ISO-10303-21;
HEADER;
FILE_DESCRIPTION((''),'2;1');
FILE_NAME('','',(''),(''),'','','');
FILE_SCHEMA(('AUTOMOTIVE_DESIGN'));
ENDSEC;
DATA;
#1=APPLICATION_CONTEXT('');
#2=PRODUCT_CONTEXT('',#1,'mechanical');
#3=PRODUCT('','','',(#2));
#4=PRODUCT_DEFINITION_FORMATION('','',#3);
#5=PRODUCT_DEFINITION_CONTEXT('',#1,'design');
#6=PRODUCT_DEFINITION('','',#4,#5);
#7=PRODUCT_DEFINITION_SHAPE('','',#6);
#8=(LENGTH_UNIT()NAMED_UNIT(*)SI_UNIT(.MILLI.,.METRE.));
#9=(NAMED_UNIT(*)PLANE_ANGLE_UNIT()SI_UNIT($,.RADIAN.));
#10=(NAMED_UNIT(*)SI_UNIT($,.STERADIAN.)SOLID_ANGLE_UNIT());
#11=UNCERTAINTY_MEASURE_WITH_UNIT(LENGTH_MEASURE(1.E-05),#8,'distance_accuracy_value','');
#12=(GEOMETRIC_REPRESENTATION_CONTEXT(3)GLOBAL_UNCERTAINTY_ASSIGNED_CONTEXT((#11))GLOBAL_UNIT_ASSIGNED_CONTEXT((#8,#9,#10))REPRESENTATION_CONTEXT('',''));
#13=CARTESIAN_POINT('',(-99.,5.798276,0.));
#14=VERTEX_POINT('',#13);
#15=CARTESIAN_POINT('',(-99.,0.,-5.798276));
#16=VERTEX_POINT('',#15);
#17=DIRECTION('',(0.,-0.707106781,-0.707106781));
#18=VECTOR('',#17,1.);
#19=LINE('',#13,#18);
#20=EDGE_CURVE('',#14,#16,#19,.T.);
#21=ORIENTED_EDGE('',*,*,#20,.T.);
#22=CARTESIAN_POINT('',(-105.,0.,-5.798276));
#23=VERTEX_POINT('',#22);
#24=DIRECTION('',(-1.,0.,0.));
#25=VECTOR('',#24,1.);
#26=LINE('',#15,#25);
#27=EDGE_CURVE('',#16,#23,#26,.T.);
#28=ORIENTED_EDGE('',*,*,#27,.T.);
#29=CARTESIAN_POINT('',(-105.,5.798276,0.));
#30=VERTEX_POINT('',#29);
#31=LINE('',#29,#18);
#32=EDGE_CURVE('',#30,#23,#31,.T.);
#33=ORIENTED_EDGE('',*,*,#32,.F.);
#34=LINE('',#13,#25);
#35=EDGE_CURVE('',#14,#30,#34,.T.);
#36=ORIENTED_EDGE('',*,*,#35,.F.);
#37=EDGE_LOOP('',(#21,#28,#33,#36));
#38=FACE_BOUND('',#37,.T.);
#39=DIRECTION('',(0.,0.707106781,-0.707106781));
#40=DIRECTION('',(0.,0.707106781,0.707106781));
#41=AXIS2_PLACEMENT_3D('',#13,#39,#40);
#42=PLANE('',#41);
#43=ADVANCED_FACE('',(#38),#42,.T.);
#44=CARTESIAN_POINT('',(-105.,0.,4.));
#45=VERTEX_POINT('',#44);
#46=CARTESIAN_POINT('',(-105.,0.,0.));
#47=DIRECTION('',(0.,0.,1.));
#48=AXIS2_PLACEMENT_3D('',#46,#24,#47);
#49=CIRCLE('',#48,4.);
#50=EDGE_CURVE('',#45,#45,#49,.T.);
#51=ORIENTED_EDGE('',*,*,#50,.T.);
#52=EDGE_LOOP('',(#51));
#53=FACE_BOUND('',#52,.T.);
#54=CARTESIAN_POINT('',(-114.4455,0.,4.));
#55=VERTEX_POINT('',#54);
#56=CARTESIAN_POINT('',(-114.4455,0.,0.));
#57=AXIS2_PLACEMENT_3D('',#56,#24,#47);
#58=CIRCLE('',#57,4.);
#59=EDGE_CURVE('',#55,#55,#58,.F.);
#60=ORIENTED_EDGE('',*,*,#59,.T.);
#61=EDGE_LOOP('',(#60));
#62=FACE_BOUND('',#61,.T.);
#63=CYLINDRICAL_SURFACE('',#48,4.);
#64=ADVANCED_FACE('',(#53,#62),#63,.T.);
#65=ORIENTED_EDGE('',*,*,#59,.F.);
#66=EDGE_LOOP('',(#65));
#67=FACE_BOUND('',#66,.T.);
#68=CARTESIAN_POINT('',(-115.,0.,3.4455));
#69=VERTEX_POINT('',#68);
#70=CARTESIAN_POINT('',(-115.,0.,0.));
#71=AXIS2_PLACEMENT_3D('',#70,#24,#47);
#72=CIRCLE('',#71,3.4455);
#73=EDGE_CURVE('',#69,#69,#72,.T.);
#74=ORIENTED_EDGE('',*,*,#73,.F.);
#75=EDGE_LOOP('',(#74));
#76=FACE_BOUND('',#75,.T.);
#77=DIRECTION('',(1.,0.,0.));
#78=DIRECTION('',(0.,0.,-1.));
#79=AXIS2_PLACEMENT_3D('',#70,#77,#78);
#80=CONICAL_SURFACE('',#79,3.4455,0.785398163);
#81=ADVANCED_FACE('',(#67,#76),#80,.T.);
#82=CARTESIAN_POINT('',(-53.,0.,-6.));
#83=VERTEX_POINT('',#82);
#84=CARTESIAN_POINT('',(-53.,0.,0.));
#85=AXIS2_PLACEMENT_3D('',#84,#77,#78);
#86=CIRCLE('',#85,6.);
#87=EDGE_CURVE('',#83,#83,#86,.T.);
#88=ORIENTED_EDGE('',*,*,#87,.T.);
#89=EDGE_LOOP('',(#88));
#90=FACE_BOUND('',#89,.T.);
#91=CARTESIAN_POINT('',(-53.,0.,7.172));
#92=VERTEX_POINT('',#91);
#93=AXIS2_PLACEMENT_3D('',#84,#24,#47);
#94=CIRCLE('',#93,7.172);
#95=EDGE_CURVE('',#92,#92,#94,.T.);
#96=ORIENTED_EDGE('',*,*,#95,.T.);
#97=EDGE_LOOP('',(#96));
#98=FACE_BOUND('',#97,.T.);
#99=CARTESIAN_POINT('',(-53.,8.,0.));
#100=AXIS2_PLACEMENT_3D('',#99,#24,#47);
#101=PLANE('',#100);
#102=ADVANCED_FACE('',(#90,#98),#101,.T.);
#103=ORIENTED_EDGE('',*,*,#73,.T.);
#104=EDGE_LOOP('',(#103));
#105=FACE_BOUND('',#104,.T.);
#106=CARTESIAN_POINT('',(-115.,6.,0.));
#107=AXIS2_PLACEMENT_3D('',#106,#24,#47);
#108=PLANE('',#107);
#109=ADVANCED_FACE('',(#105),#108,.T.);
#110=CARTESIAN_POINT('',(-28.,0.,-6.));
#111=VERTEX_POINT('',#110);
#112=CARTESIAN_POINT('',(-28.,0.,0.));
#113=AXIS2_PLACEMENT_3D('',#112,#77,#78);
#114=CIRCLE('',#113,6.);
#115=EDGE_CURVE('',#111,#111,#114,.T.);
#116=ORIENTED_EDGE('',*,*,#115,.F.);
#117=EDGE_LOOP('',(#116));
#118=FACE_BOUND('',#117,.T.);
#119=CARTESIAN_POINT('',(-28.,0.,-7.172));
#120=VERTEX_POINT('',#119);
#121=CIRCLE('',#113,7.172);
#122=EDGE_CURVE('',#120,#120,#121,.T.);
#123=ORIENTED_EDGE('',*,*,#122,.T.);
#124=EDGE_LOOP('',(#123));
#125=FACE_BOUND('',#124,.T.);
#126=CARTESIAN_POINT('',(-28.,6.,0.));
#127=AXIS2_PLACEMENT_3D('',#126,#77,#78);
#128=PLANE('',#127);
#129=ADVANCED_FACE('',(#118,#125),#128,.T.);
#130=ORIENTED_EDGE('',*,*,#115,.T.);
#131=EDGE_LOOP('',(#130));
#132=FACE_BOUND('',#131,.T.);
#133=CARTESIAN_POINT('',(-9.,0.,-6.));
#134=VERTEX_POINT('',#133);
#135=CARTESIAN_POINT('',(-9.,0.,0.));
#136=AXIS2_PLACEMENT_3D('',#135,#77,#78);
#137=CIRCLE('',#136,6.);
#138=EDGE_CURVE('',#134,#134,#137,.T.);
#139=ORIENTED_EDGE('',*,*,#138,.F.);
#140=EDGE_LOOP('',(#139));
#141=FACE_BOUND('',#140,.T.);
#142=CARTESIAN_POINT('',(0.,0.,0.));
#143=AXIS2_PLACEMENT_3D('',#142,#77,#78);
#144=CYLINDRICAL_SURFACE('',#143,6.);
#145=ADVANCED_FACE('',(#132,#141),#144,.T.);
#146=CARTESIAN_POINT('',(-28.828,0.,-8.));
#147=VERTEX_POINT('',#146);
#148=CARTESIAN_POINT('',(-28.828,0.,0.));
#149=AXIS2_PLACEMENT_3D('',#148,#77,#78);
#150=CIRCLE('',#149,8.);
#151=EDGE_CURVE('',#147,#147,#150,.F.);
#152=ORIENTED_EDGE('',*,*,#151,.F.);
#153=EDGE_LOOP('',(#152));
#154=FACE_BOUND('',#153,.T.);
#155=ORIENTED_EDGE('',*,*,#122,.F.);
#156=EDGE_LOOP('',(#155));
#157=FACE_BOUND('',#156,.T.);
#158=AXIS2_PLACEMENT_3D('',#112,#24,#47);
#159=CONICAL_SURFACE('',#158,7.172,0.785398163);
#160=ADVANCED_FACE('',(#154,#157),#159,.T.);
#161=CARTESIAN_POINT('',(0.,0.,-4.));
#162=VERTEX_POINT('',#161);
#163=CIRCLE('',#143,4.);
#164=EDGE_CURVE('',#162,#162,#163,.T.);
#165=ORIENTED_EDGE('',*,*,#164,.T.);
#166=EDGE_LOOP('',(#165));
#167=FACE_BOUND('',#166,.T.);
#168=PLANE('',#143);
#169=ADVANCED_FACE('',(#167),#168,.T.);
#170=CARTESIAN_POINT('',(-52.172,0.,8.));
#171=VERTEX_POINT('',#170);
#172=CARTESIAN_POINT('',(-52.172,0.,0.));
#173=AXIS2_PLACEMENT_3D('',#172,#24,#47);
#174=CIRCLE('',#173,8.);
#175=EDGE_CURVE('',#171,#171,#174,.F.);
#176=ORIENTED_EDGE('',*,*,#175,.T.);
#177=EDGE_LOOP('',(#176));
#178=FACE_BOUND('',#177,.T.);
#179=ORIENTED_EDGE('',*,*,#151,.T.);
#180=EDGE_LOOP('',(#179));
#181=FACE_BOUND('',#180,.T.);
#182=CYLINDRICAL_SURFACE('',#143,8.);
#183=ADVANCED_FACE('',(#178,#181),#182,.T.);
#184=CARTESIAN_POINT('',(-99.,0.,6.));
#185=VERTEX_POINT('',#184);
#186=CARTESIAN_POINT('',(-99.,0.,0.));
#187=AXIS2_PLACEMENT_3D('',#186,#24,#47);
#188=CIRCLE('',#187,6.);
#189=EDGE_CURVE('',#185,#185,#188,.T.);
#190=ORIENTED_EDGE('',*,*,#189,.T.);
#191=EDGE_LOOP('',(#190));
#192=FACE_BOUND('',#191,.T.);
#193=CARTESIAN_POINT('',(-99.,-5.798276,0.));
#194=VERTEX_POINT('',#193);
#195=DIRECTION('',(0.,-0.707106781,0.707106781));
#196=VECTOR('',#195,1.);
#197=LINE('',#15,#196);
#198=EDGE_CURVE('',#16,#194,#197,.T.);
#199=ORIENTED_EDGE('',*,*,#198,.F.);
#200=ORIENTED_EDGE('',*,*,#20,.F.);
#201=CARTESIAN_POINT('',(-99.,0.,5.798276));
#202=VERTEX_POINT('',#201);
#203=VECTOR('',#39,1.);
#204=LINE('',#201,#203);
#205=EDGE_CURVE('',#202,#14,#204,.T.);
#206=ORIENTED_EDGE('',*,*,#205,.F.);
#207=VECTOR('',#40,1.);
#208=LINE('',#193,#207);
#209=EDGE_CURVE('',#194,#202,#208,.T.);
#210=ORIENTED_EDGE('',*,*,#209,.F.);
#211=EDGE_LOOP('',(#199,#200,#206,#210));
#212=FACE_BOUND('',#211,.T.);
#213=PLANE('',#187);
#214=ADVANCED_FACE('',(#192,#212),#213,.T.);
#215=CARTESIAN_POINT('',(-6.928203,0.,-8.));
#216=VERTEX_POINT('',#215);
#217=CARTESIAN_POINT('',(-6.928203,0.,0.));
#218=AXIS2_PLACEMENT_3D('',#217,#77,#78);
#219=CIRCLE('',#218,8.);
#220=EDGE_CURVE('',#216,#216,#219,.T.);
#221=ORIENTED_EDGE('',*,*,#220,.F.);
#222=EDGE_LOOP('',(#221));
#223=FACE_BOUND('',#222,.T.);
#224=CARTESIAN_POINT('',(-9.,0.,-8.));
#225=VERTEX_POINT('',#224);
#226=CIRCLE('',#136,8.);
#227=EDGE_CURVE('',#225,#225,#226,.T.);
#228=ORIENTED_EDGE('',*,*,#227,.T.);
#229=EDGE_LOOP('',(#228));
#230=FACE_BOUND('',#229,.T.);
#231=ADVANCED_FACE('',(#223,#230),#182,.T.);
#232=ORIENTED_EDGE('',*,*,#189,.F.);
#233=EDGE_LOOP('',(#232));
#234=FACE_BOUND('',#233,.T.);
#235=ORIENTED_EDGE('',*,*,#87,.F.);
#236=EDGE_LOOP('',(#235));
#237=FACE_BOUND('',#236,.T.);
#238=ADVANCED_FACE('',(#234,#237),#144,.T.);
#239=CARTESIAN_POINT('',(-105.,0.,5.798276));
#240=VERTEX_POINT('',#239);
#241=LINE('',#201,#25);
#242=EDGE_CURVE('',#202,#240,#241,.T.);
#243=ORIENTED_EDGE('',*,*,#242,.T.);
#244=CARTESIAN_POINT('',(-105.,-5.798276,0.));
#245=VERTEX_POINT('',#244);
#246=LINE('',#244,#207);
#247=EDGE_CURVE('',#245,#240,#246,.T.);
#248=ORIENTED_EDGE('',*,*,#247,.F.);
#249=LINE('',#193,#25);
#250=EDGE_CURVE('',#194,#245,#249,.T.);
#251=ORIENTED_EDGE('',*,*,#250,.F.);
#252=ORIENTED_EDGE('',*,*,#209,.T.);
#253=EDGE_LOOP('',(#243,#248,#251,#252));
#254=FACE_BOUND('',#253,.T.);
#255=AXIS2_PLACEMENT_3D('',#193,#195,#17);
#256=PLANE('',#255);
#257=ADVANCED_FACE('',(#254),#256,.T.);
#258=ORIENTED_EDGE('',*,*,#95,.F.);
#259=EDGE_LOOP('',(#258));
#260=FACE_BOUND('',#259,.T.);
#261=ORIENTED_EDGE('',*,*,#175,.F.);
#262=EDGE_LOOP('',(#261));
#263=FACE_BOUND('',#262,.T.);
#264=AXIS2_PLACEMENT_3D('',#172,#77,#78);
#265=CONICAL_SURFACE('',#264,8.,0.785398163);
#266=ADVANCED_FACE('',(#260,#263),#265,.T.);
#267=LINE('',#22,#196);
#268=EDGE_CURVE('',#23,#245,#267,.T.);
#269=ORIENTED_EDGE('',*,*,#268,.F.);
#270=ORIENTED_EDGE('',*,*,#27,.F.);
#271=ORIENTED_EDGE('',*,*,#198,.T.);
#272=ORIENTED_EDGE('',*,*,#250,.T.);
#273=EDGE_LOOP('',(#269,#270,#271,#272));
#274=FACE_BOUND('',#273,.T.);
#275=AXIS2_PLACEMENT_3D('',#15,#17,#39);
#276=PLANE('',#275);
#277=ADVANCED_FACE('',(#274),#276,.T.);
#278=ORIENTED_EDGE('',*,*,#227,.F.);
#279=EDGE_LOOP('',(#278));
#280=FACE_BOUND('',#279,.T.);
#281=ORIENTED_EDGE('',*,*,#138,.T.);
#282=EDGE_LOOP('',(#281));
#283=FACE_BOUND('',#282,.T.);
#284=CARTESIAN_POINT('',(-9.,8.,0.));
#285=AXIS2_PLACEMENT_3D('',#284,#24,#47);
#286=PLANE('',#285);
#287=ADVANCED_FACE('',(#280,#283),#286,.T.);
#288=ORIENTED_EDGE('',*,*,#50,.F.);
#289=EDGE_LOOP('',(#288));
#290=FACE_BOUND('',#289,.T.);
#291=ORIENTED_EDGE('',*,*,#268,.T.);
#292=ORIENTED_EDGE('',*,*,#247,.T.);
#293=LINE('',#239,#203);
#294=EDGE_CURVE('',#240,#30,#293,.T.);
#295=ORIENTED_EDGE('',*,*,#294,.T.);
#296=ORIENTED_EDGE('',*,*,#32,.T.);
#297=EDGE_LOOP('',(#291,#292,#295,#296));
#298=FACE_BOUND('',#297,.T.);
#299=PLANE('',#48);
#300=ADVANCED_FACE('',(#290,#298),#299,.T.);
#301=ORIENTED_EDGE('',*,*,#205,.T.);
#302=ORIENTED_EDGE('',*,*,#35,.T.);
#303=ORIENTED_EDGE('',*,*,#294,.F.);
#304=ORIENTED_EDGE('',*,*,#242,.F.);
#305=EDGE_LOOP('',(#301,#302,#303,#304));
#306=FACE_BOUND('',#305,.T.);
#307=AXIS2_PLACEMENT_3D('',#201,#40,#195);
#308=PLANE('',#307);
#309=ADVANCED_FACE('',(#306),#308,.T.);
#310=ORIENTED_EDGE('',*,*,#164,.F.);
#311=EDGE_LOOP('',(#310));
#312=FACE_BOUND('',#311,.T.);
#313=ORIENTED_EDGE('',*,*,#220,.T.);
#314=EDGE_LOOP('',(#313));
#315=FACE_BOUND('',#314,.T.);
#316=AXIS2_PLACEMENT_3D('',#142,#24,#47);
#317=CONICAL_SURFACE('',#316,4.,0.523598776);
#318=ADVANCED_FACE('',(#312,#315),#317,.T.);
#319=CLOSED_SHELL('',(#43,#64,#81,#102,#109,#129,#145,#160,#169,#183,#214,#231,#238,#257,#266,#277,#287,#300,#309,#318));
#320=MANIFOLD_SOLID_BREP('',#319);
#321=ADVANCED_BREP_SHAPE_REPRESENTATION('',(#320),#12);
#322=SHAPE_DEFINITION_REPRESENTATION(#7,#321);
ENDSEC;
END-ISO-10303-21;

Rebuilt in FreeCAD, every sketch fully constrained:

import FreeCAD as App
import Part
import Sketcher
Q = App.Units.Quantity


def edges_at(feature, points):
    """Names of the edges that pass closest to the given points."""
    edges = feature.Shape.Edges
    near = lambda p: min(range(len(edges)), key=lambda i: edges[i].distToShape(Part.Vertex(*p))[0])
    return sorted({f"Edge{near(p) + 1}" for p in points})

doc = App.newDocument("Part")
params = doc.addObject("Spreadsheet::Sheet", "Params")
for row, (alias, value) in enumerate([
    ("sketch1_width", "19 mm"),
    ("sketch1_width2", "25 mm"),
    ("sketch1_width3", "62 mm"),
    ("sketch1_width4", "115 mm"),
    ("sketch1_height", "4 mm"),
    ("revolution_angle", "360 deg"),
    ("chamfer_size", "0.828 mm"),
    ("sketch2_diameter", "12 mm"),
    ("sketch2_diameter2", "8 mm"),
    ("pocket1_length", "10 mm"),
    ("sketch3_diameter", "12 mm"),
    ("sketch3_length", "8.2 mm"),
    ("pocket2_length", "6 mm"),
    ("chamfer2_size", "0.5545 mm"),
], start=1):
    params.set(f"A{row}", alias)
    params.set(f"B{row}", "=" + value)
    params.setAlias(f"B{row}", alias)

body = doc.addObject("PartDesign::Body", "Body")

sketch1 = body.newObject("Sketcher::SketchObject", "Sketch")
sketch1.AttachmentSupport = (doc.getObject("XY_Plane"), [""])
sketch1.MapMode = "FlatFace"
sketch1.addGeometry(Part.LineSegment(App.Vector(0, 0, 0), App.Vector(0, 4, 0)), False)
sketch1.addGeometry(Part.LineSegment(App.Vector(0, 4, 0), App.Vector(-6.9, 8, 0)), False)
sketch1.addGeometry(Part.LineSegment(App.Vector(-6.9, 8, 0), App.Vector(-9, 8, 0)), False)
sketch1.addGeometry(Part.LineSegment(App.Vector(-9, 8, 0), App.Vector(-9, 6, 0)), False)
sketch1.addGeometry(Part.LineSegment(App.Vector(-9, 6, 0), App.Vector(-28, 6, 0)), False)
sketch1.addGeometry(Part.LineSegment(App.Vector(-28, 6, 0), App.Vector(-28, 8, 0)), False)
sketch1.addGeometry(Part.LineSegment(App.Vector(-28, 8, 0), App.Vector(-53, 8, 0)), False)
sketch1.addGeometry(Part.LineSegment(App.Vector(-53, 8, 0), App.Vector(-53, 6, 0)), False)
sketch1.addGeometry(Part.LineSegment(App.Vector(-53, 6, 0), App.Vector(-115, 6, 0)), False)
sketch1.addGeometry(Part.LineSegment(App.Vector(-115, 6, 0), App.Vector(-115, 0, 0)), False)
sketch1.addGeometry(Part.LineSegment(App.Vector(-115, 0, 0), App.Vector(0, 0, 0)), False)
sketch1.addConstraint(Sketcher.Constraint("Coincident", 0, 2, 1, 1))
sketch1.addConstraint(Sketcher.Constraint("Coincident", 1, 2, 2, 1))
sketch1.addConstraint(Sketcher.Constraint("Coincident", 2, 2, 3, 1))
sketch1.addConstraint(Sketcher.Constraint("Coincident", 3, 2, 4, 1))
sketch1.addConstraint(Sketcher.Constraint("Coincident", 4, 2, 5, 1))
sketch1.addConstraint(Sketcher.Constraint("Coincident", 5, 2, 6, 1))
sketch1.addConstraint(Sketcher.Constraint("Coincident", 6, 2, 7, 1))
sketch1.addConstraint(Sketcher.Constraint("Coincident", 7, 2, 8, 1))
sketch1.addConstraint(Sketcher.Constraint("Coincident", 8, 2, 9, 1))
sketch1.addConstraint(Sketcher.Constraint("Coincident", 9, 2, 10, 1))
sketch1.addConstraint(Sketcher.Constraint("Coincident", 10, 2, 0, 1))
sketch1.addConstraint(Sketcher.Constraint("Vertical", 0))
sketch1.addConstraint(Sketcher.Constraint("Horizontal", 2))
sketch1.addConstraint(Sketcher.Constraint("Vertical", 3))
sketch1.addConstraint(Sketcher.Constraint("Horizontal", 4))
sketch1.addConstraint(Sketcher.Constraint("Vertical", 5))
sketch1.addConstraint(Sketcher.Constraint("Horizontal", 6))
sketch1.addConstraint(Sketcher.Constraint("Vertical", 7))
sketch1.addConstraint(Sketcher.Constraint("Horizontal", 8))
sketch1.addConstraint(Sketcher.Constraint("Vertical", 9))
sketch1.addConstraint(Sketcher.Constraint("Horizontal", 10))
sketch1.addConstraint(Sketcher.Constraint("Coincident", 10, 2, -1, 1))
sketch1.addConstraint(Sketcher.Constraint("Horizontal", 2, 2, 5, 2))
sketch1.addConstraint(Sketcher.Constraint("Horizontal", 4, 2, 7, 2))
sketch1.addConstraint(Sketcher.Constraint("DistanceX", 4, 2, 4, 1, Q("19 mm")))
sketch1.addConstraint(Sketcher.Constraint("DistanceX", 6, 2, 6, 1, Q("25 mm")))
sketch1.addConstraint(Sketcher.Constraint("DistanceX", 8, 2, 8, 1, Q("62 mm")))
sketch1.addConstraint(Sketcher.Constraint("DistanceX", 10, 1, 10, 2, Q("115 mm")))
sketch1.addConstraint(Sketcher.Constraint("DistanceY", 0, 1, 0, 2, Q("4 mm")))
sketch1.addConstraint(Sketcher.Constraint("DistanceY", 3, 2, 3, 1, Q("2 mm")))
sketch1.addConstraint(Sketcher.Constraint("DistanceY", 9, 2, 9, 1, Q("6 mm")))
sketch1.addConstraint(Sketcher.Constraint("Angle", 1, Q("150 deg")))
sketch1.setExpression("Constraints[24]", "Params.sketch1_width")
sketch1.setExpression("Constraints[25]", "Params.sketch1_width2")
sketch1.setExpression("Constraints[26]", "Params.sketch1_width3")
sketch1.setExpression("Constraints[27]", "Params.sketch1_width4")
sketch1.setExpression("Constraints[28]", "Params.sketch1_height")
revolution = body.newObject("PartDesign::Revolution", "Revolution")
revolution.Profile = sketch1
revolution.ReferenceAxis = (sketch1, ["H_Axis"])
revolution.setExpression("Angle", "Params.revolution_angle")
doc.recompute()

chamfer = body.newObject("PartDesign::Chamfer", "Chamfer")
chamfer.Base = (revolution, edges_at(revolution, [(-53, -8, 0), (-28, -8, 0)]))
chamfer.setExpression("Size", "Params.chamfer_size")

sketch2 = body.newObject("Sketcher::SketchObject", "Sketch001")
sketch2.AttachmentSupport = (doc.getObject("YZ_Plane"), [""])
sketch2.MapMode = "FlatFace"
sketch2.AttachmentOffset = App.Placement(App.Vector(0, 0, -115), App.Rotation())
sketch2.addGeometry(Part.Circle(App.Vector(0, 0, 0), App.Vector(0, 0, 1), 6), False)
sketch2.addGeometry(Part.Circle(App.Vector(0, 0, 0), App.Vector(0, 0, 1), 4), False)
sketch2.addConstraint(Sketcher.Constraint("Coincident", 0, 3, -1, 1))
sketch2.addConstraint(Sketcher.Constraint("Coincident", 1, 3, -1, 1))
sketch2.addConstraint(Sketcher.Constraint("Diameter", 0, Q("12 mm")))
sketch2.addConstraint(Sketcher.Constraint("Diameter", 1, Q("8 mm")))
sketch2.setExpression("Constraints[2]", "Params.sketch2_diameter")
sketch2.setExpression("Constraints[3]", "Params.sketch2_diameter2")
pocket1 = body.newObject("PartDesign::Pocket", "Pocket")
pocket1.Profile = sketch2
pocket1.setExpression("Length", "Params.pocket1_length")
pocket1.Reversed = True

sketch3 = body.newObject("Sketcher::SketchObject", "Sketch002")
sketch3.AttachmentSupport = (doc.getObject("YZ_Plane"), [""])
sketch3.MapMode = "FlatFace"
sketch3.AttachmentOffset = App.Placement(App.Vector(0, 0, -105), App.Rotation())
sketch3.addGeometry(Part.Circle(App.Vector(0, 0, 0), App.Vector(0, 0, 1), 6), False)
sketch3.addGeometry(Part.LineSegment(App.Vector(0, -6, 0), App.Vector(6, 0, 0)), False)
sketch3.addGeometry(Part.LineSegment(App.Vector(6, 0, 0), App.Vector(0, 6, 0)), False)
sketch3.addGeometry(Part.LineSegment(App.Vector(0, 6, 0), App.Vector(-6, 0, 0)), False)
sketch3.addGeometry(Part.LineSegment(App.Vector(-6, 0, 0), App.Vector(0, -6, 0)), False)
sketch3.addConstraint(Sketcher.Constraint("Coincident", 1, 2, 2, 1))
sketch3.addConstraint(Sketcher.Constraint("Coincident", 2, 2, 3, 1))
sketch3.addConstraint(Sketcher.Constraint("Coincident", 3, 2, 4, 1))
sketch3.addConstraint(Sketcher.Constraint("Coincident", 4, 2, 1, 1))
sketch3.addConstraint(Sketcher.Constraint("Coincident", 0, 3, -1, 1))
sketch3.addConstraint(Sketcher.Constraint("Symmetric", 1, 2, 3, 2, -1, 1))
sketch3.addConstraint(Sketcher.Constraint("Symmetric", 2, 2, 4, 2, -1, 1))
sketch3.addConstraint(Sketcher.Constraint("PointOnObject", 1, 2, -1))
sketch3.addConstraint(Sketcher.Constraint("PointOnObject", 2, 2, -2))
sketch3.addConstraint(Sketcher.Constraint("Perpendicular", 1, 2))
sketch3.addConstraint(Sketcher.Constraint("Diameter", 0, Q("12 mm")))
sketch3.addConstraint(Sketcher.Constraint("Distance", 1, Q("8.2 mm")))
sketch3.setExpression("Constraints[10]", "Params.sketch3_diameter")
sketch3.setExpression("Constraints[11]", "Params.sketch3_length")
pocket2 = body.newObject("PartDesign::Pocket", "Pocket001")
pocket2.Profile = sketch3
pocket2.setExpression("Length", "Params.pocket2_length")
pocket2.Reversed = True
doc.recompute()

chamfer2 = body.newObject("PartDesign::Chamfer", "Chamfer001")
chamfer2.Base = (pocket2, edges_at(pocket2, [(-115, 0, -4)]))
chamfer2.setExpression("Size", "Params.chamfer2_size")

doc.recompute()
